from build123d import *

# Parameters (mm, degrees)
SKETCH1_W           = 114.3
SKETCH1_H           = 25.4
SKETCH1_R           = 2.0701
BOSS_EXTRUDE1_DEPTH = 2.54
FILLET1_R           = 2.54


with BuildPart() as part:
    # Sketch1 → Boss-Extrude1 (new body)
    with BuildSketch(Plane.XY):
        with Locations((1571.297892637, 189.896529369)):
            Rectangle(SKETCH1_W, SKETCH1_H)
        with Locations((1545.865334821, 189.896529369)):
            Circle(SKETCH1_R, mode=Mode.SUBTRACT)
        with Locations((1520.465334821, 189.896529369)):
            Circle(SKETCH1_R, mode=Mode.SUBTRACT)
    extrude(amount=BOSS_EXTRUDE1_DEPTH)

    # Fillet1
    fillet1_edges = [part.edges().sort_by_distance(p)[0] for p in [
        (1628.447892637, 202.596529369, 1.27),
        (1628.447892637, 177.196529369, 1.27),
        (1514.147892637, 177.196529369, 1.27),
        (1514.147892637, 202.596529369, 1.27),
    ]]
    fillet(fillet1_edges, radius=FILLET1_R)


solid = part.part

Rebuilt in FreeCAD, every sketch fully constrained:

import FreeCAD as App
import Part
import Sketcher

V = App.Vector
Q = App.Units.Quantity


def edges_at(feature, points):
    """Names of the edges that pass closest to the given points."""
    edges = feature.Shape.Edges
    near = lambda p: min(range(len(edges)), key=lambda i: edges[i].distToShape(Part.Vertex(*p))[0])
    return sorted({f"Edge{near(p) + 1}" for p in points})

doc = App.newDocument("Part")
body = doc.addObject("PartDesign::Body", "Body")

sketch1 = body.newObject("Sketcher::SketchObject", "Sketch")
sketch1.AttachmentSupport = (doc.getObject("XY_Plane"), [""])
sketch1.MapMode = "FlatFace"
sketch1.addGeometry([
    Part.LineSegment(V(1514.1, 202.6, 0), V(1514.1, 177.2, 0)),
    Part.LineSegment(V(1514.1, 177.2, 0), V(1628.4, 177.2, 0)),
    Part.LineSegment(V(1628.4, 177.2, 0), V(1628.4, 202.6, 0)),
    Part.LineSegment(V(1628.4, 202.6, 0), V(1514.1, 202.6, 0)),
    Part.Circle(V(1520.5, 189.9, 0), V(0, 0, 1), 2.1),
    Part.Circle(V(1545.9, 189.9, 0), V(0, 0, 1), 2.1),
], False)
sketch1.addConstraint([
    Sketcher.Constraint("Coincident", 0, 2, 1, 1),
    Sketcher.Constraint("Coincident", 1, 2, 2, 1),
    Sketcher.Constraint("Coincident", 2, 2, 3, 1),
    Sketcher.Constraint("Coincident", 3, 2, 0, 1),
    Sketcher.Constraint("Vertical", 0),
    Sketcher.Constraint("Horizontal", 1),
    Sketcher.Constraint("Vertical", 2),
    Sketcher.Constraint("Horizontal", 3),
    Sketcher.Constraint("Equal", 4, 5),
    Sketcher.Constraint("Horizontal", 4, 3, 5, 3),
    Sketcher.Constraint("DistanceY", 0, 2, 0, 1, Q("1 in")),
    Sketcher.Constraint("Diameter", 4, Q("0.163 in")),
    Sketcher.Constraint("DistanceX", 1, 1, 1, 2, Q("4.5 in")),
    Sketcher.Constraint("DistanceX", 4, 3, 5, 3, Q("1 in")),
    Sketcher.Constraint("DistanceY", 0, 2, 4, 3, Q("0.5 in")),
    Sketcher.Constraint("DistanceY", -1, 1, 4, 3, 189.896529),
    Sketcher.Constraint("DistanceX", -1, 1, 4, 3, 1520.465335),
    Sketcher.Constraint("DistanceX", -1, 1, 0, 2, 1514.147893),
])
pad1 = body.newObject("PartDesign::Pad", "Pad")
pad1.Profile = sketch1
pad1.Length = Q("0.1 in")
doc.recompute()

fillet = body.newObject("PartDesign::Fillet", "Fillet")
fillet.Base = (pad1, edges_at(pad1, [
    (1628.448, 202.597, 1.27),
    (1628.448, 177.197, 1.27),
    (1514.148, 177.197, 1.27),
    (1514.148, 202.597, 1.27),
]))
fillet.Radius = Q("0.1 in")

doc.recompute()
